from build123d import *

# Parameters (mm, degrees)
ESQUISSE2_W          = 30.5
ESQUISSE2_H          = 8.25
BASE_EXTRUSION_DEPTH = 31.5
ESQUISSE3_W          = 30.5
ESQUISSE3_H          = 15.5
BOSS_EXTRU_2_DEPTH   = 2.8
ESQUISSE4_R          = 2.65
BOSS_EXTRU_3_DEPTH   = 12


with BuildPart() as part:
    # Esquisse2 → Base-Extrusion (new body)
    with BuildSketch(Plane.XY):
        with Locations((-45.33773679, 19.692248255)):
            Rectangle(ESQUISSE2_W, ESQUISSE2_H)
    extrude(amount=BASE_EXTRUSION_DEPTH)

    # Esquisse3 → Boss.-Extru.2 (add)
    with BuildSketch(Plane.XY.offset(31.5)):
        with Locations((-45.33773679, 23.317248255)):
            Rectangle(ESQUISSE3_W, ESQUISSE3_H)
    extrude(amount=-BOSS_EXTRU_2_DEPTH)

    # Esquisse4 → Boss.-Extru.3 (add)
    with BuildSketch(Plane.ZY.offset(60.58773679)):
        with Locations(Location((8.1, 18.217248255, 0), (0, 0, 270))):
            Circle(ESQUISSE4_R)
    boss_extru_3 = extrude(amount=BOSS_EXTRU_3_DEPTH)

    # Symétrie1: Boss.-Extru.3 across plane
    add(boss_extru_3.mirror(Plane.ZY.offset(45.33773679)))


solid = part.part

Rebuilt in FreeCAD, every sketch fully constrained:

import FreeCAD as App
import Part
import Sketcher
from FreeCAD import Vector


def add_polygon(sketch, points):
    """Adds a closed chain of lines whose ends are joined by coincident constraints."""
    first, n = sketch.GeometryCount, len(points)
    for a, b in zip(points, points[1:] + points[:1]):
        sketch.addGeometry(Part.LineSegment(App.Vector(*a, 0), App.Vector(*b, 0)), False)
    for i in range(n):
        sketch.addConstraint(Sketcher.Constraint("Coincident", first + i, 2, first + (i + 1) % n, 1))

doc = App.newDocument("Part")
params = doc.addObject("Spreadsheet::Sheet", "Params")
for row, (alias, value) in enumerate([
    ("sketch1_width", "30.5 mm"),
    ("sketch1_height", "8.25 mm"),
    ("pad1_length", "31.5 mm"),
    ("sketch2_width", "30.5 mm"),
    ("sketch2_height", "15.5 mm"),
    ("pad2_length", "2.8 mm"),
    ("sketch3_diameter", "5.3 mm"),
    ("pad3_length", "12 mm"),
], start=1):
    params.set(f"A{row}", alias)
    params.set(f"B{row}", "=" + value)
    params.setAlias(f"B{row}", alias)

body = doc.addObject("PartDesign::Body", "Body")

# Sketch on XY plane
sketch1 = body.newObject("Sketcher::SketchObject", "Sketch")
sketch1.AttachmentSupport = (doc.getObject("XY_Plane"), [""])
sketch1.MapMode = "FlatFace"
add_polygon(sketch1, [(-60.587737, 23.817248), (-60.587737, 15.567248), (-30.087737, 15.567248), (-30.087737, 23.817248)])  # lines 0-3
sketch1.addConstraint([
    Sketcher.Constraint("Vertical", 0),
    Sketcher.Constraint("Horizontal", 1),
    Sketcher.Constraint("Vertical", 2),
    Sketcher.Constraint("Horizontal", 3),
    Sketcher.Constraint("DistanceX", 1, 1, 1, 2, 30.5),
    Sketcher.Constraint("DistanceY", 0, 2, 0, 1, 8.25),
    Sketcher.Constraint("DistanceY", -1, 1, 0, 2, 15.567248),
    Sketcher.Constraint("DistanceX", 0, 2, -1, 1, 60.587737),
])
sketch1.setExpression("Constraints[8]", "Params.sketch1_width")
sketch1.setExpression("Constraints[9]", "Params.sketch1_height")
pad1 = body.newObject("PartDesign::Pad", "Pad")
pad1.Profile = sketch1
pad1.setExpression("Length", "Params.pad1_length")

# Sketch on XY plane
sketch2 = body.newObject("Sketcher::SketchObject", "Sketch001")
sketch2.AttachmentSupport = (doc.getObject("XY_Plane"), [""])
sketch2.MapMode = "FlatFace"
sketch2.AttachmentOffset = App.Placement(Vector(0, 0, 31.5), App.Rotation())
add_polygon(sketch2, [(-60.587737, 31.067248), (-60.587737, 15.567248), (-30.087737, 15.567248), (-30.087737, 31.067248)])  # lines 0-3
sketch2.addConstraint([
    Sketcher.Constraint("Vertical", 0),
    Sketcher.Constraint("Horizontal", 1),
    Sketcher.Constraint("Vertical", 2),
    Sketcher.Constraint("Horizontal", 3),
    Sketcher.Constraint("DistanceX", 1, 1, 1, 2, 30.5),
    Sketcher.Constraint("DistanceY", 0, 2, 0, 1, 15.5),
    Sketcher.Constraint("DistanceY", -1, 1, 0, 2, 15.567248),
    Sketcher.Constraint("DistanceX", 0, 2, -1, 1, 60.587737),
])
sketch2.setExpression("Constraints[8]", "Params.sketch2_width")
sketch2.setExpression("Constraints[9]", "Params.sketch2_height")
pad2 = body.newObject("PartDesign::Pad", "Pad001")
pad2.Profile = sketch2
pad2.setExpression("Length", "Params.pad2_length")
pad2.Reversed = True

# Sketch on YZ plane
sketch3 = body.newObject("Sketcher::SketchObject", "Sketch002")
sketch3.AttachmentSupport = (doc.getObject("YZ_Plane"), [""])
sketch3.MapMode = "FlatFace"
sketch3.AttachmentOffset = App.Placement(Vector(0, 0, -60.587737), App.Rotation())
sketch3.addGeometry(Part.Circle(Vector(18.217248, 8.1, 0), Vector(0, 0, 1), 2.65), False)
sketch3.addConstraint([
    Sketcher.Constraint("Diameter", 0, 5.3),
    Sketcher.Constraint("DistanceY", -1, 1, 0, 3, 8.1),
    Sketcher.Constraint("DistanceX", -1, 1, 0, 3, 18.217248),
])
sketch3.setExpression("Constraints[0]", "Params.sketch3_diameter")
pad3 = body.newObject("PartDesign::Pad", "Pad002")
pad3.Profile = sketch3
pad3.setExpression("Length", "Params.pad3_length")
pad3.Reversed = True
doc.recompute()

datumplane = body.newObject("PartDesign::Plane", "DatumPlane")
datumplane.AttachmentSupport = (doc.getObject("YZ_Plane"), [""])
datumplane.MapMode = "FlatFace"
datumplane.AttachmentOffset = App.Placement(Vector(0, 0, -45.337737), App.Rotation())
mirrored = body.newObject("PartDesign::Mirrored", "Mirrored")
mirrored.Originals = [pad3]
mirrored.MirrorPlane = (datumplane, [""])
body.Tip = mirrored

doc.recompute()
